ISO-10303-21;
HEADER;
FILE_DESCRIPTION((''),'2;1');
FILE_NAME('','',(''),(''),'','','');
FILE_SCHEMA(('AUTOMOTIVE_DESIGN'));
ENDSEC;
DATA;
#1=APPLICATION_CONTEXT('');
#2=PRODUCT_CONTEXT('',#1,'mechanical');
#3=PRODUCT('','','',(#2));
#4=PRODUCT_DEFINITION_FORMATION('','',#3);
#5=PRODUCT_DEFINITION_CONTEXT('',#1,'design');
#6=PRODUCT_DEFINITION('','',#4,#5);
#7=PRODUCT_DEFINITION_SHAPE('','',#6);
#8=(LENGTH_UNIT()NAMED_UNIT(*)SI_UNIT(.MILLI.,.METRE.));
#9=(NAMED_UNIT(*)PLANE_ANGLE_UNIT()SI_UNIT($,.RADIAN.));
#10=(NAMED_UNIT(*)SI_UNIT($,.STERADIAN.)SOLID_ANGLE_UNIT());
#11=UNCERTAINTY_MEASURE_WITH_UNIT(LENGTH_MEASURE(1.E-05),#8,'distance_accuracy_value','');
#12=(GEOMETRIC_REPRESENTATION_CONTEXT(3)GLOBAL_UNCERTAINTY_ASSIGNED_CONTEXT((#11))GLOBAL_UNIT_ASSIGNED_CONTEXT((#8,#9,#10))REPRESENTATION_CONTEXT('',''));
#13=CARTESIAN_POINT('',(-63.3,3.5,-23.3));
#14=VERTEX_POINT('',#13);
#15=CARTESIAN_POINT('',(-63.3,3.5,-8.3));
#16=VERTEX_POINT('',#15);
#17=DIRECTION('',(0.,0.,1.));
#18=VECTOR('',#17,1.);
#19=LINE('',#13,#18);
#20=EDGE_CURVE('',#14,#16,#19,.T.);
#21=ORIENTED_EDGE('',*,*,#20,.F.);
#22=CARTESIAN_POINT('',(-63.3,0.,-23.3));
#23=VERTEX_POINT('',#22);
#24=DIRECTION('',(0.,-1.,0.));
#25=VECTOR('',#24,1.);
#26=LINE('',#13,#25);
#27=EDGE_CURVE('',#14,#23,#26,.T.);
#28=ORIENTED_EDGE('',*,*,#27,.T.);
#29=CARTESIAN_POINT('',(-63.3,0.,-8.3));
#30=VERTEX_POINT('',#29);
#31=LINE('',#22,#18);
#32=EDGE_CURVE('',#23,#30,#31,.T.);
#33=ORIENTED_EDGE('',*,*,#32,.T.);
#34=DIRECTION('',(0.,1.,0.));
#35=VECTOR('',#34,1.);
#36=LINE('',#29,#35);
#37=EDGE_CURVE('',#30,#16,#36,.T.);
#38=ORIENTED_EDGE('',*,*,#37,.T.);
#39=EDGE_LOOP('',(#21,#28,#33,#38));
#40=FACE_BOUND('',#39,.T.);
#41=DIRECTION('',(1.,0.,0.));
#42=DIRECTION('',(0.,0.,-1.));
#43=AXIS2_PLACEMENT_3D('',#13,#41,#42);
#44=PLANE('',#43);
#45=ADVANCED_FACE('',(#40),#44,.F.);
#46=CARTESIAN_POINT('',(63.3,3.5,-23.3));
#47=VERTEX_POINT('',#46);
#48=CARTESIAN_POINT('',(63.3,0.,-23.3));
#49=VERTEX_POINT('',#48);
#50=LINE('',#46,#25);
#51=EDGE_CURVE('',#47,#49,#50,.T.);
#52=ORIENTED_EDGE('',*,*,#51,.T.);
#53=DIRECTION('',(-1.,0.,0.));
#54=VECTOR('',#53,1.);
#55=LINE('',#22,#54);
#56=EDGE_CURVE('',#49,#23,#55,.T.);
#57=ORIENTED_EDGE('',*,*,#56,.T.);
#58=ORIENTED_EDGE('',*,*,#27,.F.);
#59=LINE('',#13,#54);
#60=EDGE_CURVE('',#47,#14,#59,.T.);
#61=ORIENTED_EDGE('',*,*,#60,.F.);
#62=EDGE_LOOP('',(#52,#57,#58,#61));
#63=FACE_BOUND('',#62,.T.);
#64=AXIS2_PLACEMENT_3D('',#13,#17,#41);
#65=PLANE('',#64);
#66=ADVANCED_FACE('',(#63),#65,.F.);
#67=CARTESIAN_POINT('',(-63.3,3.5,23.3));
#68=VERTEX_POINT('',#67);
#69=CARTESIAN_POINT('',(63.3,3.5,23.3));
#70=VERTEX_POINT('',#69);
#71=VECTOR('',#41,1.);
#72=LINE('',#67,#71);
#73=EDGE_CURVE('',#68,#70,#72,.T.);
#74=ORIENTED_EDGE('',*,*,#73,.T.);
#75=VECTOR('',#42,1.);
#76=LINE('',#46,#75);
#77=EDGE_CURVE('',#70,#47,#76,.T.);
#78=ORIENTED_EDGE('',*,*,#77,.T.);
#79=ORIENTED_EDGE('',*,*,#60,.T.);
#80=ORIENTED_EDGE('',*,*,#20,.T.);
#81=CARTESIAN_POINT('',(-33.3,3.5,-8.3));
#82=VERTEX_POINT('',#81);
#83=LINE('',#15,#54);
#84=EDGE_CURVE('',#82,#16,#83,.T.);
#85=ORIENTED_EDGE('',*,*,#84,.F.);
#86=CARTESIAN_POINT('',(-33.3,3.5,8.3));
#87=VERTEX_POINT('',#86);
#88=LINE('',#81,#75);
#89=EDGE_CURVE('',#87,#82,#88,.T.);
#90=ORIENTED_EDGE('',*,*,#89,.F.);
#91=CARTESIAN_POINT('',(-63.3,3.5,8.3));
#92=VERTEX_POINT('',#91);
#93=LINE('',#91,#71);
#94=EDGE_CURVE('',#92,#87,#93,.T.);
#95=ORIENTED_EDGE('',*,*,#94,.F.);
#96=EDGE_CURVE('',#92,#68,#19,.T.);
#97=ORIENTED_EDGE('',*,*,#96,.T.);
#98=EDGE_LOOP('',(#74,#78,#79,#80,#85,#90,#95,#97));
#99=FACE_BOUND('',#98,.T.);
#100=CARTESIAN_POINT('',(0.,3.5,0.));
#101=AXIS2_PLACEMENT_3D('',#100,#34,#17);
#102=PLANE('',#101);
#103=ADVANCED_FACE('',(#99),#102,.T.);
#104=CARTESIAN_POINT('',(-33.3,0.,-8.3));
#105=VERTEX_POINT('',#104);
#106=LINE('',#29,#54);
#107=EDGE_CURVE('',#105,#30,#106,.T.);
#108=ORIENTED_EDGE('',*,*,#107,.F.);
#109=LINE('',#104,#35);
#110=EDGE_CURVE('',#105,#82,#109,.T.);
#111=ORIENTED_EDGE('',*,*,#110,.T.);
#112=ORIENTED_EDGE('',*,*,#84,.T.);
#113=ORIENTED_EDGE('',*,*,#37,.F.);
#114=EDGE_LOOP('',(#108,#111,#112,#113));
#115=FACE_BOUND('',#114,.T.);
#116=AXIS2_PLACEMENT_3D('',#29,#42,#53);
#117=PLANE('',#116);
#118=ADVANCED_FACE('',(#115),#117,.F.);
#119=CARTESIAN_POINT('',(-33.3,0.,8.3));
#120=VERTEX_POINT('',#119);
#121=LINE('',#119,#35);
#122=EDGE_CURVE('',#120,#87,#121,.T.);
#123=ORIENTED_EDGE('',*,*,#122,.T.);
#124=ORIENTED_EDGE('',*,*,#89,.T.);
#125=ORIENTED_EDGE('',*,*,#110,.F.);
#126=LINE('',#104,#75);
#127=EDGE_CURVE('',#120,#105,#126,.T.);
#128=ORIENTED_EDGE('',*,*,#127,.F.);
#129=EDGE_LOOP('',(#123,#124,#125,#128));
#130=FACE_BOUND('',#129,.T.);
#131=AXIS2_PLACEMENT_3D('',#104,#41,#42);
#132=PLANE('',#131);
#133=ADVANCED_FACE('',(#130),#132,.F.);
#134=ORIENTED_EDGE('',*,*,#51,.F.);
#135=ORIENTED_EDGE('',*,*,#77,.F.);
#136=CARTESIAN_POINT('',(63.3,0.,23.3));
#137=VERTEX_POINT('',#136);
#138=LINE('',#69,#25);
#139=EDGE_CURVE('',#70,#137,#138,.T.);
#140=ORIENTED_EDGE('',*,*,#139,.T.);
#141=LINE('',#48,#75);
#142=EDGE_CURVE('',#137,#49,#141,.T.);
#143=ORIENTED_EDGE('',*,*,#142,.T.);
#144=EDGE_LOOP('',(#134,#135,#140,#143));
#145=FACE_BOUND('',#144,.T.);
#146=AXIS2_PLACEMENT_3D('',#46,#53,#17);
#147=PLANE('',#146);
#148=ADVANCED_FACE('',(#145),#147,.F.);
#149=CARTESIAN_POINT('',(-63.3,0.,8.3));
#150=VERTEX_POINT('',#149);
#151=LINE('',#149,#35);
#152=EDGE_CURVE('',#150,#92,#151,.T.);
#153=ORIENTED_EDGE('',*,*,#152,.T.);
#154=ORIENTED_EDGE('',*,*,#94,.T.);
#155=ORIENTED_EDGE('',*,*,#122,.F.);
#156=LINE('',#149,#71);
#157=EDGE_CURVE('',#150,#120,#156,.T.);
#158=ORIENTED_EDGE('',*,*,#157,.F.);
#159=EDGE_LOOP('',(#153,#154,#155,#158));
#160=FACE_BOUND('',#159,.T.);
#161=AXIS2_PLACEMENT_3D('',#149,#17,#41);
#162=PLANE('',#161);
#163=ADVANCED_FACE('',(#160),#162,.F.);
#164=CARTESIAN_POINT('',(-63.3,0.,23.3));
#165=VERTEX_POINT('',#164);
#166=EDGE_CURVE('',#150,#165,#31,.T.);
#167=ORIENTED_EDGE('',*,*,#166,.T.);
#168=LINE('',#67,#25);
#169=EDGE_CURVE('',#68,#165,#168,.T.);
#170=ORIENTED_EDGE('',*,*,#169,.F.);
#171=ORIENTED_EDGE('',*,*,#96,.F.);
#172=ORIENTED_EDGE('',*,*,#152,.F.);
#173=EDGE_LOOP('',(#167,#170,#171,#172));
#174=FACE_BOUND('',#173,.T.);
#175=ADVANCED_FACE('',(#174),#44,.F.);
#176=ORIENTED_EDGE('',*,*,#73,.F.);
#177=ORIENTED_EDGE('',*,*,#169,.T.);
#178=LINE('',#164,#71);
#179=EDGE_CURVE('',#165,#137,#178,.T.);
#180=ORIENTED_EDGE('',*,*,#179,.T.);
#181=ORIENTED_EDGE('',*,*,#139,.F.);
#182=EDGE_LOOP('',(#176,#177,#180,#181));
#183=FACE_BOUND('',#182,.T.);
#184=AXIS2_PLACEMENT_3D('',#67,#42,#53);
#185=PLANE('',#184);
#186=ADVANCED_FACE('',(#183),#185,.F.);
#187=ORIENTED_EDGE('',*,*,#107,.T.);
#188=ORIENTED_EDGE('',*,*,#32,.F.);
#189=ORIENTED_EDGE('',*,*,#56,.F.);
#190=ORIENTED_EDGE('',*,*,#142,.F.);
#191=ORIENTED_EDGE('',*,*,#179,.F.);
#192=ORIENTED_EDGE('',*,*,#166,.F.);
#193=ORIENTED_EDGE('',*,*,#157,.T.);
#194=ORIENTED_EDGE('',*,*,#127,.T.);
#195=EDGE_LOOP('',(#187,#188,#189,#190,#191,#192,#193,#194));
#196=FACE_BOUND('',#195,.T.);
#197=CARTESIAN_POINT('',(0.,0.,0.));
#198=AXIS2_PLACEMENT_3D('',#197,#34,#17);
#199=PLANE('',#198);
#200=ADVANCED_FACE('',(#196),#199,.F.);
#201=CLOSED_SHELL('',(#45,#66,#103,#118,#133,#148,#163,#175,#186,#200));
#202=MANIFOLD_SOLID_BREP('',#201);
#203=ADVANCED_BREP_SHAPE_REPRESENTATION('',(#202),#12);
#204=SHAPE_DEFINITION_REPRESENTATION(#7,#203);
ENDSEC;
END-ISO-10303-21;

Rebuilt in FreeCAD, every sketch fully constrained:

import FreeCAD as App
import Part
import Sketcher
from FreeCAD import Vector
Q = App.Units.Quantity


def add_polygon(sketch, points):
    """Adds a closed chain of lines whose ends are joined by coincident constraints."""
    first, n = sketch.GeometryCount, len(points)
    for a, b in zip(points, points[1:] + points[:1]):
        sketch.addGeometry(Part.LineSegment(App.Vector(*a, 0), App.Vector(*b, 0)), False)
    for i in range(n):
        sketch.addConstraint(Sketcher.Constraint("Coincident", first + i, 2, first + (i + 1) % n, 1))

doc = App.newDocument("Part")
body = doc.addObject("PartDesign::Body", "Body")

# Sketch on XZ plane
sketch1 = body.newObject("Sketcher::SketchObject", "Sketch")
sketch1.AttachmentSupport = (doc.getObject("XZ_Plane"), [""])
sketch1.MapMode = "FlatFace"
add_polygon(sketch1, [(-63, -23), (-63, 23), (63, 23), (63, -23)])  # lines 0-3
sketch1.addConstraint([
    Sketcher.Constraint("Vertical", 0),
    Sketcher.Constraint("Horizontal", 1),
    Sketcher.Constraint("Vertical", 2),
    Sketcher.Constraint("Horizontal", 3),
    Sketcher.Constraint("Symmetric", 0, 2, 2, 2, -1, 1),
    Sketcher.Constraint("DistanceX", 1, 1, 1, 2, Q("126.6 mm")),
    Sketcher.Constraint("DistanceY", 0, 1, 0, 2, Q("46.6 mm")),
])
pad1 = body.newObject("PartDesign::Pad", "Pad")
pad1.Profile = sketch1
pad1.Length = 3.5
pad1.Reversed = True

# Sketch on XZ plane
sketch2 = body.newObject("Sketcher::SketchObject", "Sketch001")
sketch2.AttachmentSupport = (doc.getObject("XZ_Plane"), [""])
sketch2.MapMode = "FlatFace"
sketch2.AttachmentOffset = App.Placement(Vector(0, 0, -3.5), App.Rotation())
add_polygon(sketch2, [(-63, -8), (-63, 8), (-33, 8), (-33, -8)])  # lines 0-3
sketch2.addConstraint([
    Sketcher.Constraint("Vertical", 0),
    Sketcher.Constraint("Horizontal", 1),
    Sketcher.Constraint("Vertical", 2),
    Sketcher.Constraint("Horizontal", 3),
    Sketcher.Constraint("DistanceX", 1, 1, 1, 2, Q("30 mm")),
    Sketcher.Constraint("DistanceY", 0, 1, 0, 2, Q("16.6 mm")),
    Sketcher.Constraint("DistanceX", 0, 2, -1, 1, Q("63.3 mm")),
    Sketcher.Constraint("DistanceY", -1, 1, 0, 2, Q("8.3 mm")),
])
pocket1 = body.newObject("PartDesign::Pocket", "Pocket")
pocket1.Profile = sketch2
pocket1.Length = 3.5
pocket1.Reversed = True

doc.recompute()
